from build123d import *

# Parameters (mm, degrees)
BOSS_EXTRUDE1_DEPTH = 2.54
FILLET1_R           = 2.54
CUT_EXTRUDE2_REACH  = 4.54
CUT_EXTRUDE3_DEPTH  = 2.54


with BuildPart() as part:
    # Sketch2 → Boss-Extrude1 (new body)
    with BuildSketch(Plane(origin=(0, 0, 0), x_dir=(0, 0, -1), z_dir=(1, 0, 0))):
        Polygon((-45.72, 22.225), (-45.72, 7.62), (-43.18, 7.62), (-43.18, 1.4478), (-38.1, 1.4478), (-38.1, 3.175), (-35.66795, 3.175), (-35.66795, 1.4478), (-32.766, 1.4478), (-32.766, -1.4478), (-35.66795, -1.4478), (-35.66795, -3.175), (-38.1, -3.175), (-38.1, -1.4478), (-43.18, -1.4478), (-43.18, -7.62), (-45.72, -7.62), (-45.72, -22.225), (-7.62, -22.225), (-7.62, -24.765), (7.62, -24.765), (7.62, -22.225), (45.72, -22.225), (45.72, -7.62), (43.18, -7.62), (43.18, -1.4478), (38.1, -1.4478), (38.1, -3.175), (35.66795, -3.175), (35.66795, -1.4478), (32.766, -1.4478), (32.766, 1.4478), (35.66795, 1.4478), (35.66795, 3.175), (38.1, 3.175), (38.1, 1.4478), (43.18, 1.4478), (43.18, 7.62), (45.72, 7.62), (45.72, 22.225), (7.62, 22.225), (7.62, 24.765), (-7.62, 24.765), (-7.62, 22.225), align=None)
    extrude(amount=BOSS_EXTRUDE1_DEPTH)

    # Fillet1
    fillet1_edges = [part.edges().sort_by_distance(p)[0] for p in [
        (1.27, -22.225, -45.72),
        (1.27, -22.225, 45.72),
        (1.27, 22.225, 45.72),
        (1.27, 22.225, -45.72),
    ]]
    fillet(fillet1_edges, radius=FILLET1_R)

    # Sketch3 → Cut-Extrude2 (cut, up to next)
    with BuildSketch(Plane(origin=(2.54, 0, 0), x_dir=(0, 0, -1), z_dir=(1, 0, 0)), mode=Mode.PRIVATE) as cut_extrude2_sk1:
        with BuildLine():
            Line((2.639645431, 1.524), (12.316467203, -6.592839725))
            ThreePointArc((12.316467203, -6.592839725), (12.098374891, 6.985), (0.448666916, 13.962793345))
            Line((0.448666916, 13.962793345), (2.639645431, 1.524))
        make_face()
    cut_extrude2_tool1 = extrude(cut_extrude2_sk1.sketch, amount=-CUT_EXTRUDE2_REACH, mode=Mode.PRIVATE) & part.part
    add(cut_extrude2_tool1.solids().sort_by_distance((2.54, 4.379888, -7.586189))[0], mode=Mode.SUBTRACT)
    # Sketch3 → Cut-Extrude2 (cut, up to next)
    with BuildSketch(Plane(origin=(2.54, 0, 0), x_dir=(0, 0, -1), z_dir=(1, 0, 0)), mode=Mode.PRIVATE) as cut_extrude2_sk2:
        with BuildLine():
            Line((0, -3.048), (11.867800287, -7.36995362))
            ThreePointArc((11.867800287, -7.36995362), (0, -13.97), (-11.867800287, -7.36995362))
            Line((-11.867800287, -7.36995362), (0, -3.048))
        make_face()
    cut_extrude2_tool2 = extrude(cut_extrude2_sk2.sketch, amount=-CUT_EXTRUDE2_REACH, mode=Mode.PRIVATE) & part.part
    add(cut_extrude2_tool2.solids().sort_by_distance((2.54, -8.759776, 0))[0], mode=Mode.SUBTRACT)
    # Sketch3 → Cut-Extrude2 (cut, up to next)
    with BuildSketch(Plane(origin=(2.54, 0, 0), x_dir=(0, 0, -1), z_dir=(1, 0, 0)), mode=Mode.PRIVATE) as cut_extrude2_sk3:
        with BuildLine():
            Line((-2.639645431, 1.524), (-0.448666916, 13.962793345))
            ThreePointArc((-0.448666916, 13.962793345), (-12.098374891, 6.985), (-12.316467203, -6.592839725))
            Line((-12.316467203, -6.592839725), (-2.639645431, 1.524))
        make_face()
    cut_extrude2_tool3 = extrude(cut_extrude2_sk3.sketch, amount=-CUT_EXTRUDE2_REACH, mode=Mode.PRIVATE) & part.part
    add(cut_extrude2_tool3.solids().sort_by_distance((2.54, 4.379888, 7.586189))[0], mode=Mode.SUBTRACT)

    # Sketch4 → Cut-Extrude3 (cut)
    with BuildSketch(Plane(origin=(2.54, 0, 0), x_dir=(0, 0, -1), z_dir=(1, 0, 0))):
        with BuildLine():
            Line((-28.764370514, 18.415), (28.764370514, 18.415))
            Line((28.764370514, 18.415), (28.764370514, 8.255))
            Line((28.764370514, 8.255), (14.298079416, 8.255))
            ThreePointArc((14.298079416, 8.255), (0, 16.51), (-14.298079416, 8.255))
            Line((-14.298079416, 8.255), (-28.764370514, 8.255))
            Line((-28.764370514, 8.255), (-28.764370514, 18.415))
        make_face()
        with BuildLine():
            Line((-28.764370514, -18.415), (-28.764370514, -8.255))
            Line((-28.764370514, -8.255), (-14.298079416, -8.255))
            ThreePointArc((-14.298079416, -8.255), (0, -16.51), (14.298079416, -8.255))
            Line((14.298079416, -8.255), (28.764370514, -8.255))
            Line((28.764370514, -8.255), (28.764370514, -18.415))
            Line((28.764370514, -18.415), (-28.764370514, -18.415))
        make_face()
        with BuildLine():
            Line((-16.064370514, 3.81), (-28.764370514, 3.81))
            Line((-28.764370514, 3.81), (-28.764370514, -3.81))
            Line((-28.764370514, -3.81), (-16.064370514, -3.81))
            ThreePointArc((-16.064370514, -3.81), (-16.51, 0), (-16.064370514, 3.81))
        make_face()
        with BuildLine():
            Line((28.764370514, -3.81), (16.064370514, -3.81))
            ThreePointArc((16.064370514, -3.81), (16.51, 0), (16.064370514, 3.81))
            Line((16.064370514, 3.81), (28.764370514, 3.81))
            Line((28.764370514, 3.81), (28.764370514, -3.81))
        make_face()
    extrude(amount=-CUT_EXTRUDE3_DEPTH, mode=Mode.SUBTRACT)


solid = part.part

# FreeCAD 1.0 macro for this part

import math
import FreeCAD as App
import Part
import Sketcher
from FreeCAD import Vector
Q = App.Units.Quantity


def edges_at(feature, points):
    """Names of the edges that pass closest to the given points."""
    edges = feature.Shape.Edges
    near = lambda p: min(range(len(edges)), key=lambda i: edges[i].distToShape(Part.Vertex(*p))[0])
    return sorted({f"Edge{near(p) + 1}" for p in points})


def add_polygon(sketch, points):
    """Adds a closed chain of lines whose ends are joined by coincident constraints."""
    first, n = sketch.GeometryCount, len(points)
    for a, b in zip(points, points[1:] + points[:1]):
        sketch.addGeometry(Part.LineSegment(App.Vector(*a, 0), App.Vector(*b, 0)), False)
    for i in range(n):
        sketch.addConstraint(Sketcher.Constraint("Coincident", first + i, 2, first + (i + 1) % n, 1))

doc = App.newDocument("Part")
body = doc.addObject("PartDesign::Body", "Body")

# Sketch on YZ plane
sketch1 = body.newObject("Sketcher::SketchObject", "Sketch")
sketch1.AttachmentSupport = (doc.getObject("YZ_Plane"), [""])
sketch1.MapMode = "FlatFace"
add_polygon(sketch1, [(22.2, 45.7), (7.6, 45.7), (7.6, 43.2), (1.4, 43.2), (1.4, 38.1), (3.2, 38.1), (3.2, 35.7), (1.4, 35.7), (1.4, 32.8), (-1.4, 32.8), (-1.4, 35.7), (-3.2, 35.7), (-3.2, 38.1), (-1.4, 38.1), (-1.4, 43.2), (-7.6, 43.2), (-7.6, 45.7), (-22.2, 45.7), (-22.2, 7.6), (-24.8, 7.6), (-24.8, -7.6), (-22.2, -7.6), (-22.2, -45.7), (-7.6, -45.7), (-7.6, -43.2), (-1.4, -43.2), (-1.4, -38.1), (-3.2, -38.1), (-3.2, -35.7), (-1.4, -35.7), (-1.4, -32.8), (1.4, -32.8), (1.4, -35.7), (3.2, -35.7), (3.2, -38.1), (1.4, -38.1), (1.4, -43.2), (7.6, -43.2), (7.6, -45.7), (22.2, -45.7), (22.2, -7.6), (24.8, -7.6), (24.8, 7.6), (22.2, 7.6)])  # lines 0-43
sketch1.addConstraint(Sketcher.Constraint("Horizontal", 0))
sketch1.addConstraint(Sketcher.Constraint("Vertical", 1))
sketch1.addConstraint(Sketcher.Constraint("Horizontal", 2))
sketch1.addConstraint(Sketcher.Constraint("Vertical", 3))
sketch1.addConstraint(Sketcher.Constraint("Horizontal", 4))
sketch1.addConstraint(Sketcher.Constraint("Vertical", 5))
sketch1.addConstraint(Sketcher.Constraint("Horizontal", 6))
sketch1.addConstraint(Sketcher.Constraint("Vertical", 7))
sketch1.addConstraint(Sketcher.Constraint("Horizontal", 8))
sketch1.addConstraint(Sketcher.Constraint("Vertical", 9))
sketch1.addConstraint(Sketcher.Constraint("Horizontal", 10))
sketch1.addConstraint(Sketcher.Constraint("Vertical", 11))
sketch1.addConstraint(Sketcher.Constraint("Horizontal", 12))
sketch1.addConstraint(Sketcher.Constraint("Vertical", 13))
sketch1.addConstraint(Sketcher.Constraint("Horizontal", 14))
sketch1.addConstraint(Sketcher.Constraint("Vertical", 15))
sketch1.addConstraint(Sketcher.Constraint("Horizontal", 16))
sketch1.addConstraint(Sketcher.Constraint("Vertical", 17))
sketch1.addConstraint(Sketcher.Constraint("Horizontal", 18))
sketch1.addConstraint(Sketcher.Constraint("Vertical", 19))
sketch1.addConstraint(Sketcher.Constraint("Horizontal", 20))
sketch1.addConstraint(Sketcher.Constraint("Vertical", 21))
sketch1.addConstraint(Sketcher.Constraint("Horizontal", 22))
sketch1.addConstraint(Sketcher.Constraint("Vertical", 23))
sketch1.addConstraint(Sketcher.Constraint("Horizontal", 24))
sketch1.addConstraint(Sketcher.Constraint("Vertical", 25))
sketch1.addConstraint(Sketcher.Constraint("Horizontal", 26))
sketch1.addConstraint(Sketcher.Constraint("Vertical", 27))
sketch1.addConstraint(Sketcher.Constraint("Horizontal", 28))
sketch1.addConstraint(Sketcher.Constraint("Vertical", 29))
sketch1.addConstraint(Sketcher.Constraint("Horizontal", 30))
sketch1.addConstraint(Sketcher.Constraint("Vertical", 31))
sketch1.addConstraint(Sketcher.Constraint("Horizontal", 32))
sketch1.addConstraint(Sketcher.Constraint("Vertical", 33))
sketch1.addConstraint(Sketcher.Constraint("Horizontal", 34))
sketch1.addConstraint(Sketcher.Constraint("Vertical", 35))
sketch1.addConstraint(Sketcher.Constraint("Horizontal", 36))
sketch1.addConstraint(Sketcher.Constraint("Vertical", 37))
sketch1.addConstraint(Sketcher.Constraint("Horizontal", 38))
sketch1.addConstraint(Sketcher.Constraint("Vertical", 39))
sketch1.addConstraint(Sketcher.Constraint("Horizontal", 40))
sketch1.addConstraint(Sketcher.Constraint("Vertical", 41))
sketch1.addConstraint(Sketcher.Constraint("Horizontal", 42))
sketch1.addConstraint(Sketcher.Constraint("Vertical", 43))
sketch1.addConstraint(Sketcher.Constraint("Symmetric", 0, 2, 22, 2, -1, 1))
sketch1.addConstraint(Sketcher.Constraint("Symmetric", 2, 2, 24, 2, -1, 1))
sketch1.addConstraint(Sketcher.Constraint("Symmetric", 4, 2, 26, 2, -1, 1))
sketch1.addConstraint(Sketcher.Constraint("Symmetric", 6, 2, 28, 2, -1, 1))
sketch1.addConstraint(Sketcher.Constraint("Symmetric", 8, 2, 30, 2, -1, 1))
sketch1.addConstraint(Sketcher.Constraint("Symmetric", 10, 2, 32, 2, -1, 1))
sketch1.addConstraint(Sketcher.Constraint("Symmetric", 12, 2, 34, 2, -1, 1))
sketch1.addConstraint(Sketcher.Constraint("Symmetric", 14, 2, 36, 2, -1, 1))
sketch1.addConstraint(Sketcher.Constraint("Symmetric", 16, 2, 38, 2, -1, 1))
sketch1.addConstraint(Sketcher.Constraint("Symmetric", 18, 2, 40, 2, -1, 1))
sketch1.addConstraint(Sketcher.Constraint("Symmetric", 20, 2, 42, 2, -1, 1))
sketch1.addConstraint(Sketcher.Constraint("Symmetric", 6, 2, 9, 2, -2))
sketch1.addConstraint(Sketcher.Constraint("Symmetric", 4, 2, 11, 2, -2))
sketch1.addConstraint(Sketcher.Constraint("Symmetric", 2, 2, 13, 2, -2))
sketch1.addConstraint(Sketcher.Constraint("Symmetric", 0, 2, 15, 2, -2))
sketch1.addConstraint(Sketcher.Constraint("Symmetric", 20, 2, 39, 2, -2))
sketch1.addConstraint(Sketcher.Constraint("Vertical", 3, 2, 6, 2))
sketch1.addConstraint(Sketcher.Constraint("Equal", 42, 1))
sketch1.addConstraint(Sketcher.Constraint("DistanceX", 18, 2, 18, 1, Q("0.1 in")))
sketch1.addConstraint(Sketcher.Constraint("DistanceY", 3, 2, 3, 1, Q("0.2 in")))
sketch1.addConstraint(Sketcher.Constraint("DistanceY", 17, 2, 17, 1, Q("1.5 in")))
sketch1.addConstraint(Sketcher.Constraint("DistanceY", 19, 2, 19, 1, Q("0.6 in")))
sketch1.addConstraint(Sketcher.Constraint("DistanceX", -1, 1, 0, 2, Q("0.3 in")))
sketch1.addConstraint(Sketcher.Constraint("DistanceX", 0, 2, 0, 1, Q("0.575 in")))
sketch1.addConstraint(Sketcher.Constraint("DistanceX", 2, 2, 2, 1, Q("0.243 in")))
sketch1.addConstraint(Sketcher.Constraint("DistanceX", 4, 1, 4, 2, Q("0.068 in")))
sketch1.addConstraint(Sketcher.Constraint("DistanceY", -1, 1, 7, 2, Q("1.29 in")))
sketch1.addConstraint(Sketcher.Constraint("DistanceY", 5, 2, 5, 1, Q("2.43205 mm")))
pad1 = body.newObject("PartDesign::Pad", "Pad")
pad1.Profile = sketch1
pad1.Length = Q("0.1 in")
doc.recompute()

fillet = body.newObject("PartDesign::Fillet", "Fillet")
fillet.Base = (pad1, edges_at(pad1, [
    (1.27, -22.225, -45.72),
    (1.27, -22.225, 45.72),
    (1.27, 22.225, 45.72),
    (1.27, 22.225, -45.72),
]))
fillet.Radius = Q("0.1 in")

# Sketch on YZ plane
sketch2 = body.newObject("Sketcher::SketchObject", "Sketch001")
sketch2.AttachmentSupport = (doc.getObject("YZ_Plane"), [""])
sketch2.MapMode = "FlatFace"
sketch2.AttachmentOffset = App.Placement(Vector(0, 0, 0.1 * 25.4), App.Rotation())
sketch2.addGeometry(Part.LineSegment(Vector(2, -3, 0), Vector(-7, -12, 0)), False)
sketch2.addGeometry(Part.ArcOfCircle(Part.Circle(Vector(0, 0, 0), Vector(0, 0, 1), 14), math.radians(-118), math.radians(-2)), False)
sketch2.addGeometry(Part.LineSegment(Vector(14, 0, 0), Vector(2, -3, 0)), False)
sketch2.addConstraint(Sketcher.Constraint("Coincident", 0, 2, 1, 1))
sketch2.addConstraint(Sketcher.Constraint("Coincident", 1, 2, 2, 1))
sketch2.addConstraint(Sketcher.Constraint("Coincident", 2, 2, 0, 1))
sketch2.addConstraint(Sketcher.Constraint("Coincident", 1, 3, -1, 1))
sketch2.addConstraint(Sketcher.Constraint("Equal", 0, 2))
sketch2.addConstraint(Sketcher.Constraint("Radius", 1, Q("0.55 in")))
sketch2.addConstraint(Sketcher.Constraint("DistanceX", -1, 1, 2, 2, Q("0.06 in")))
sketch2.addConstraint(Sketcher.Constraint("DistanceY", 0, 2, 1, 2, Q("11.8678 mm")))
sketch2.addConstraint(Sketcher.Constraint("Distance", 0, Q("12.63028 mm")))
pocket1 = body.newObject("PartDesign::Pocket", "Pocket")
pocket1.Profile = sketch2
pocket1.Type = "UpToFirst"

# Sketch on YZ plane
sketch3 = body.newObject("Sketcher::SketchObject", "Sketch002")
sketch3.AttachmentSupport = (doc.getObject("YZ_Plane"), [""])
sketch3.MapMode = "FlatFace"
sketch3.AttachmentOffset = App.Placement(Vector(0, 0, 0.1 * 25.4), App.Rotation())
sketch3.addGeometry(Part.LineSegment(Vector(-7, -12, 0), Vector(-3, 0, 0)), False)
sketch3.addGeometry(Part.LineSegment(Vector(-3, 0, 0), Vector(-7, 12, 0)), False)
sketch3.addGeometry(Part.ArcOfCircle(Part.Circle(Vector(0, 0, 0), Vector(0, 0, 1), 14), math.radians(122), math.radians(238)), False)
sketch3.addConstraint(Sketcher.Constraint("Coincident", 0, 2, 1, 1))
sketch3.addConstraint(Sketcher.Constraint("Coincident", 1, 2, 2, 1))
sketch3.addConstraint(Sketcher.Constraint("Coincident", 2, 2, 0, 1))
sketch3.addConstraint(Sketcher.Constraint("Coincident", 2, 3, -1, 1))
sketch3.addConstraint(Sketcher.Constraint("PointOnObject", 0, 2, -1))
sketch3.addConstraint(Sketcher.Constraint("Vertical", 1, 2, 2, 2))
sketch3.addConstraint(Sketcher.Constraint("Radius", 2, Q("0.55 in")))
sketch3.addConstraint(Sketcher.Constraint("DistanceX", 0, 2, -1, 1, Q("0.12 in")))
sketch3.addConstraint(Sketcher.Constraint("DistanceY", -1, 1, 1, 2, Q("11.8678 mm")))
pocket2 = body.newObject("PartDesign::Pocket", "Pocket001")
pocket2.Profile = sketch3
pocket2.Type = "UpToFirst"

# Sketch on YZ plane
sketch4 = body.newObject("Sketcher::SketchObject", "Sketch003")
sketch4.AttachmentSupport = (doc.getObject("YZ_Plane"), [""])
sketch4.MapMode = "FlatFace"
sketch4.AttachmentOffset = App.Placement(Vector(0, 0, 0.1 * 25.4), App.Rotation())
sketch4.addGeometry(Part.LineSegment(Vector(2, 3, 0), Vector(14, 0, 0)), False)
sketch4.addGeometry(Part.ArcOfCircle(Part.Circle(Vector(0, 0, 0), Vector(0, 0, 1), 14), math.radians(2), math.radians(118)), False)
sketch4.addGeometry(Part.LineSegment(Vector(-7, 12, 0), Vector(2, 3, 0)), False)
sketch4.addConstraint(Sketcher.Constraint("Coincident", 0, 2, 1, 1))
sketch4.addConstraint(Sketcher.Constraint("Coincident", 1, 2, 2, 1))
sketch4.addConstraint(Sketcher.Constraint("Coincident", 2, 2, 0, 1))
sketch4.addConstraint(Sketcher.Constraint("Coincident", 1, 3, -1, 1))
sketch4.addConstraint(Sketcher.Constraint("Equal", 0, 2))
sketch4.addConstraint(Sketcher.Constraint("Radius", 1, Q("0.55 in")))
sketch4.addConstraint(Sketcher.Constraint("DistanceX", -1, 1, 2, 2, Q("0.06 in")))
sketch4.addConstraint(Sketcher.Constraint("DistanceY", 0, 2, 1, 2, Q("11.8678 mm")))
sketch4.addConstraint(Sketcher.Constraint("Distance", 0, Q("12.63028 mm")))
pocket3 = body.newObject("PartDesign::Pocket", "Pocket002")
pocket3.Profile = sketch4
pocket3.Type = "UpToFirst"

# Sketch on YZ plane
sketch5 = body.newObject("Sketcher::SketchObject", "Sketch004")
sketch5.AttachmentSupport = (doc.getObject("YZ_Plane"), [""])
sketch5.MapMode = "FlatFace"
sketch5.AttachmentOffset = App.Placement(Vector(0, 0, 0.1 * 25.4), App.Rotation())
sketch5.addGeometry(Part.LineSegment(Vector(18, -29, 0), Vector(18, 29, 0)), False)
sketch5.addGeometry(Part.LineSegment(Vector(18, 29, 0), Vector(8, 29, 0)), False)
sketch5.addGeometry(Part.LineSegment(Vector(8, 29, 0), Vector(8, 14, 0)), False)
sketch5.addGeometry(Part.ArcOfCircle(Part.Circle(Vector(0, 0, 0), Vector(0, 0, 1), 17), math.radians(-60), math.radians(60)), False)
sketch5.addGeometry(Part.LineSegment(Vector(8, -14, 0), Vector(8, -29, 0)), False)
sketch5.addGeometry(Part.LineSegment(Vector(8, -29, 0), Vector(18, -29, 0)), False)
sketch5.addGeometry(Part.LineSegment(Vector(-8, 29, 0), Vector(-18, 29, 0)), False)
sketch5.addGeometry(Part.LineSegment(Vector(-18, 29, 0), Vector(-18, -29, 0)), False)
sketch5.addGeometry(Part.LineSegment(Vector(-18, -29, 0), Vector(-8, -29, 0)), False)
sketch5.addGeometry(Part.LineSegment(Vector(-8, -29, 0), Vector(-8, -14, 0)), False)
sketch5.addGeometry(Part.ArcOfCircle(Part.Circle(Vector(0, 0, 0), Vector(0, 0, 1), 17), math.radians(120), math.radians(240)), False)
sketch5.addGeometry(Part.LineSegment(Vector(-8, 14, 0), Vector(-8, 29, 0)), False)
sketch5.addGeometry(Part.LineSegment(Vector(4, 16, 0), Vector(4, 29, 0)), False)
sketch5.addGeometry(Part.LineSegment(Vector(4, 29, 0), Vector(-4, 29, 0)), False)
sketch5.addGeometry(Part.LineSegment(Vector(-4, 29, 0), Vector(-4, 16, 0)), False)
sketch5.addGeometry(Part.ArcOfCircle(Part.Circle(Vector(0, 0, 0), Vector(0, 0, 1), 17), math.radians(77), math.radians(103)), False)
sketch5.addGeometry(Part.LineSegment(Vector(-4, -16, 0), Vector(-4, -29, 0)), False)
sketch5.addGeometry(Part.LineSegment(Vector(-4, -29, 0), Vector(4, -29, 0)), False)
sketch5.addGeometry(Part.LineSegment(Vector(4, -29, 0), Vector(4, -16, 0)), False)
sketch5.addGeometry(Part.ArcOfCircle(Part.Circle(Vector(0, 0, 0), Vector(0, 0, 1), 17), math.radians(-103), math.radians(-77)), False)
sketch5.addConstraint(Sketcher.Constraint("Coincident", 0, 2, 1, 1))
sketch5.addConstraint(Sketcher.Constraint("Coincident", 1, 2, 2, 1))
sketch5.addConstraint(Sketcher.Constraint("Coincident", 2, 2, 3, 2))
sketch5.addConstraint(Sketcher.Constraint("Coincident", 3, 1, 4, 1))
sketch5.addConstraint(Sketcher.Constraint("Coincident", 4, 2, 5, 1))
sketch5.addConstraint(Sketcher.Constraint("Coincident", 5, 2, 0, 1))
sketch5.addConstraint(Sketcher.Constraint("Coincident", 6, 2, 7, 1))
sketch5.addConstraint(Sketcher.Constraint("Coincident", 7, 2, 8, 1))
sketch5.addConstraint(Sketcher.Constraint("Coincident", 8, 2, 9, 1))
sketch5.addConstraint(Sketcher.Constraint("Coincident", 9, 2, 10, 2))
sketch5.addConstraint(Sketcher.Constraint("Coincident", 10, 1, 11, 1))
sketch5.addConstraint(Sketcher.Constraint("Coincident", 11, 2, 6, 1))
sketch5.addConstraint(Sketcher.Constraint("Coincident", 12, 2, 13, 1))
sketch5.addConstraint(Sketcher.Constraint("Coincident", 13, 2, 14, 1))
sketch5.addConstraint(Sketcher.Constraint("Coincident", 14, 2, 15, 2))
sketch5.addConstraint(Sketcher.Constraint("Coincident", 15, 1, 12, 1))
sketch5.addConstraint(Sketcher.Constraint("Coincident", 16, 2, 17, 1))
sketch5.addConstraint(Sketcher.Constraint("Coincident", 17, 2, 18, 1))
sketch5.addConstraint(Sketcher.Constraint("Coincident", 18, 2, 19, 2))
sketch5.addConstraint(Sketcher.Constraint("Coincident", 19, 1, 16, 1))
sketch5.addConstraint(Sketcher.Constraint("Vertical", 0))
sketch5.addConstraint(Sketcher.Constraint("Horizontal", 1))
sketch5.addConstraint(Sketcher.Constraint("Vertical", 2))
sketch5.addConstraint(Sketcher.Constraint("Vertical", 4))
sketch5.addConstraint(Sketcher.Constraint("Horizontal", 5))
sketch5.addConstraint(Sketcher.Constraint("Horizontal", 6))
sketch5.addConstraint(Sketcher.Constraint("Vertical", 7))
sketch5.addConstraint(Sketcher.Constraint("Horizontal", 8))
sketch5.addConstraint(Sketcher.Constraint("Vertical", 9))
sketch5.addConstraint(Sketcher.Constraint("Vertical", 11))
sketch5.addConstraint(Sketcher.Constraint("Vertical", 12))
sketch5.addConstraint(Sketcher.Constraint("Horizontal", 13))
sketch5.addConstraint(Sketcher.Constraint("Vertical", 14))
sketch5.addConstraint(Sketcher.Constraint("Vertical", 16))
sketch5.addConstraint(Sketcher.Constraint("Horizontal", 17))
sketch5.addConstraint(Sketcher.Constraint("Vertical", 18))
sketch5.addConstraint(Sketcher.Constraint("Coincident", 3, 3, -1, 1))
sketch5.addConstraint(Sketcher.Constraint("Coincident", 10, 3, -1, 1))
sketch5.addConstraint(Sketcher.Constraint("Coincident", 15, 3, -1, 1))
sketch5.addConstraint(Sketcher.Constraint("Coincident", 19, 3, -1, 1))
sketch5.addConstraint(Sketcher.Constraint("Equal", 3, 10))
sketch5.addConstraint(Sketcher.Constraint("Equal", 10, 15))
sketch5.addConstraint(Sketcher.Constraint("Equal", 15, 19))
sketch5.addConstraint(Sketcher.Constraint("Symmetric", 5, 2, 6, 2, -1, 1))
sketch5.addConstraint(Sketcher.Constraint("Symmetric", 1, 2, 8, 2, -1, 1))
sketch5.addConstraint(Sketcher.Constraint("Symmetric", 12, 2, 16, 2, -1, 1))
sketch5.addConstraint(Sketcher.Constraint("Symmetric", 4, 2, 8, 2, -2))
sketch5.addConstraint(Sketcher.Constraint("Horizontal", 2, 2, 10, 1))
sketch5.addConstraint(Sketcher.Constraint("Horizontal", 11, 2, 12, 2))
sketch5.addConstraint(Sketcher.Constraint("Horizontal", 14, 2, 15, 1))
sketch5.addConstraint(Sketcher.Constraint("Horizontal", 18, 2, 19, 1))
sketch5.addConstraint(Sketcher.Constraint("Radius", 3, Q("0.65 in")))
sketch5.addConstraint(Sketcher.Constraint("DistanceX", 1, 2, 1, 1, Q("0.4 in")))
sketch5.addConstraint(Sketcher.Constraint("DistanceX", 13, 2, 13, 1, Q("0.3 in")))
sketch5.addConstraint(Sketcher.Constraint("DistanceY", 12, 1, 12, 2, Q("0.5 in")))
sketch5.addConstraint(Sketcher.Constraint("DistanceX", 6, 2, 1, 2, Q("1.05 in")))
pocket4 = body.newObject("PartDesign::Pocket", "Pocket003")
pocket4.Profile = sketch5
pocket4.Length = Q("0.1 in")

doc.recompute()
